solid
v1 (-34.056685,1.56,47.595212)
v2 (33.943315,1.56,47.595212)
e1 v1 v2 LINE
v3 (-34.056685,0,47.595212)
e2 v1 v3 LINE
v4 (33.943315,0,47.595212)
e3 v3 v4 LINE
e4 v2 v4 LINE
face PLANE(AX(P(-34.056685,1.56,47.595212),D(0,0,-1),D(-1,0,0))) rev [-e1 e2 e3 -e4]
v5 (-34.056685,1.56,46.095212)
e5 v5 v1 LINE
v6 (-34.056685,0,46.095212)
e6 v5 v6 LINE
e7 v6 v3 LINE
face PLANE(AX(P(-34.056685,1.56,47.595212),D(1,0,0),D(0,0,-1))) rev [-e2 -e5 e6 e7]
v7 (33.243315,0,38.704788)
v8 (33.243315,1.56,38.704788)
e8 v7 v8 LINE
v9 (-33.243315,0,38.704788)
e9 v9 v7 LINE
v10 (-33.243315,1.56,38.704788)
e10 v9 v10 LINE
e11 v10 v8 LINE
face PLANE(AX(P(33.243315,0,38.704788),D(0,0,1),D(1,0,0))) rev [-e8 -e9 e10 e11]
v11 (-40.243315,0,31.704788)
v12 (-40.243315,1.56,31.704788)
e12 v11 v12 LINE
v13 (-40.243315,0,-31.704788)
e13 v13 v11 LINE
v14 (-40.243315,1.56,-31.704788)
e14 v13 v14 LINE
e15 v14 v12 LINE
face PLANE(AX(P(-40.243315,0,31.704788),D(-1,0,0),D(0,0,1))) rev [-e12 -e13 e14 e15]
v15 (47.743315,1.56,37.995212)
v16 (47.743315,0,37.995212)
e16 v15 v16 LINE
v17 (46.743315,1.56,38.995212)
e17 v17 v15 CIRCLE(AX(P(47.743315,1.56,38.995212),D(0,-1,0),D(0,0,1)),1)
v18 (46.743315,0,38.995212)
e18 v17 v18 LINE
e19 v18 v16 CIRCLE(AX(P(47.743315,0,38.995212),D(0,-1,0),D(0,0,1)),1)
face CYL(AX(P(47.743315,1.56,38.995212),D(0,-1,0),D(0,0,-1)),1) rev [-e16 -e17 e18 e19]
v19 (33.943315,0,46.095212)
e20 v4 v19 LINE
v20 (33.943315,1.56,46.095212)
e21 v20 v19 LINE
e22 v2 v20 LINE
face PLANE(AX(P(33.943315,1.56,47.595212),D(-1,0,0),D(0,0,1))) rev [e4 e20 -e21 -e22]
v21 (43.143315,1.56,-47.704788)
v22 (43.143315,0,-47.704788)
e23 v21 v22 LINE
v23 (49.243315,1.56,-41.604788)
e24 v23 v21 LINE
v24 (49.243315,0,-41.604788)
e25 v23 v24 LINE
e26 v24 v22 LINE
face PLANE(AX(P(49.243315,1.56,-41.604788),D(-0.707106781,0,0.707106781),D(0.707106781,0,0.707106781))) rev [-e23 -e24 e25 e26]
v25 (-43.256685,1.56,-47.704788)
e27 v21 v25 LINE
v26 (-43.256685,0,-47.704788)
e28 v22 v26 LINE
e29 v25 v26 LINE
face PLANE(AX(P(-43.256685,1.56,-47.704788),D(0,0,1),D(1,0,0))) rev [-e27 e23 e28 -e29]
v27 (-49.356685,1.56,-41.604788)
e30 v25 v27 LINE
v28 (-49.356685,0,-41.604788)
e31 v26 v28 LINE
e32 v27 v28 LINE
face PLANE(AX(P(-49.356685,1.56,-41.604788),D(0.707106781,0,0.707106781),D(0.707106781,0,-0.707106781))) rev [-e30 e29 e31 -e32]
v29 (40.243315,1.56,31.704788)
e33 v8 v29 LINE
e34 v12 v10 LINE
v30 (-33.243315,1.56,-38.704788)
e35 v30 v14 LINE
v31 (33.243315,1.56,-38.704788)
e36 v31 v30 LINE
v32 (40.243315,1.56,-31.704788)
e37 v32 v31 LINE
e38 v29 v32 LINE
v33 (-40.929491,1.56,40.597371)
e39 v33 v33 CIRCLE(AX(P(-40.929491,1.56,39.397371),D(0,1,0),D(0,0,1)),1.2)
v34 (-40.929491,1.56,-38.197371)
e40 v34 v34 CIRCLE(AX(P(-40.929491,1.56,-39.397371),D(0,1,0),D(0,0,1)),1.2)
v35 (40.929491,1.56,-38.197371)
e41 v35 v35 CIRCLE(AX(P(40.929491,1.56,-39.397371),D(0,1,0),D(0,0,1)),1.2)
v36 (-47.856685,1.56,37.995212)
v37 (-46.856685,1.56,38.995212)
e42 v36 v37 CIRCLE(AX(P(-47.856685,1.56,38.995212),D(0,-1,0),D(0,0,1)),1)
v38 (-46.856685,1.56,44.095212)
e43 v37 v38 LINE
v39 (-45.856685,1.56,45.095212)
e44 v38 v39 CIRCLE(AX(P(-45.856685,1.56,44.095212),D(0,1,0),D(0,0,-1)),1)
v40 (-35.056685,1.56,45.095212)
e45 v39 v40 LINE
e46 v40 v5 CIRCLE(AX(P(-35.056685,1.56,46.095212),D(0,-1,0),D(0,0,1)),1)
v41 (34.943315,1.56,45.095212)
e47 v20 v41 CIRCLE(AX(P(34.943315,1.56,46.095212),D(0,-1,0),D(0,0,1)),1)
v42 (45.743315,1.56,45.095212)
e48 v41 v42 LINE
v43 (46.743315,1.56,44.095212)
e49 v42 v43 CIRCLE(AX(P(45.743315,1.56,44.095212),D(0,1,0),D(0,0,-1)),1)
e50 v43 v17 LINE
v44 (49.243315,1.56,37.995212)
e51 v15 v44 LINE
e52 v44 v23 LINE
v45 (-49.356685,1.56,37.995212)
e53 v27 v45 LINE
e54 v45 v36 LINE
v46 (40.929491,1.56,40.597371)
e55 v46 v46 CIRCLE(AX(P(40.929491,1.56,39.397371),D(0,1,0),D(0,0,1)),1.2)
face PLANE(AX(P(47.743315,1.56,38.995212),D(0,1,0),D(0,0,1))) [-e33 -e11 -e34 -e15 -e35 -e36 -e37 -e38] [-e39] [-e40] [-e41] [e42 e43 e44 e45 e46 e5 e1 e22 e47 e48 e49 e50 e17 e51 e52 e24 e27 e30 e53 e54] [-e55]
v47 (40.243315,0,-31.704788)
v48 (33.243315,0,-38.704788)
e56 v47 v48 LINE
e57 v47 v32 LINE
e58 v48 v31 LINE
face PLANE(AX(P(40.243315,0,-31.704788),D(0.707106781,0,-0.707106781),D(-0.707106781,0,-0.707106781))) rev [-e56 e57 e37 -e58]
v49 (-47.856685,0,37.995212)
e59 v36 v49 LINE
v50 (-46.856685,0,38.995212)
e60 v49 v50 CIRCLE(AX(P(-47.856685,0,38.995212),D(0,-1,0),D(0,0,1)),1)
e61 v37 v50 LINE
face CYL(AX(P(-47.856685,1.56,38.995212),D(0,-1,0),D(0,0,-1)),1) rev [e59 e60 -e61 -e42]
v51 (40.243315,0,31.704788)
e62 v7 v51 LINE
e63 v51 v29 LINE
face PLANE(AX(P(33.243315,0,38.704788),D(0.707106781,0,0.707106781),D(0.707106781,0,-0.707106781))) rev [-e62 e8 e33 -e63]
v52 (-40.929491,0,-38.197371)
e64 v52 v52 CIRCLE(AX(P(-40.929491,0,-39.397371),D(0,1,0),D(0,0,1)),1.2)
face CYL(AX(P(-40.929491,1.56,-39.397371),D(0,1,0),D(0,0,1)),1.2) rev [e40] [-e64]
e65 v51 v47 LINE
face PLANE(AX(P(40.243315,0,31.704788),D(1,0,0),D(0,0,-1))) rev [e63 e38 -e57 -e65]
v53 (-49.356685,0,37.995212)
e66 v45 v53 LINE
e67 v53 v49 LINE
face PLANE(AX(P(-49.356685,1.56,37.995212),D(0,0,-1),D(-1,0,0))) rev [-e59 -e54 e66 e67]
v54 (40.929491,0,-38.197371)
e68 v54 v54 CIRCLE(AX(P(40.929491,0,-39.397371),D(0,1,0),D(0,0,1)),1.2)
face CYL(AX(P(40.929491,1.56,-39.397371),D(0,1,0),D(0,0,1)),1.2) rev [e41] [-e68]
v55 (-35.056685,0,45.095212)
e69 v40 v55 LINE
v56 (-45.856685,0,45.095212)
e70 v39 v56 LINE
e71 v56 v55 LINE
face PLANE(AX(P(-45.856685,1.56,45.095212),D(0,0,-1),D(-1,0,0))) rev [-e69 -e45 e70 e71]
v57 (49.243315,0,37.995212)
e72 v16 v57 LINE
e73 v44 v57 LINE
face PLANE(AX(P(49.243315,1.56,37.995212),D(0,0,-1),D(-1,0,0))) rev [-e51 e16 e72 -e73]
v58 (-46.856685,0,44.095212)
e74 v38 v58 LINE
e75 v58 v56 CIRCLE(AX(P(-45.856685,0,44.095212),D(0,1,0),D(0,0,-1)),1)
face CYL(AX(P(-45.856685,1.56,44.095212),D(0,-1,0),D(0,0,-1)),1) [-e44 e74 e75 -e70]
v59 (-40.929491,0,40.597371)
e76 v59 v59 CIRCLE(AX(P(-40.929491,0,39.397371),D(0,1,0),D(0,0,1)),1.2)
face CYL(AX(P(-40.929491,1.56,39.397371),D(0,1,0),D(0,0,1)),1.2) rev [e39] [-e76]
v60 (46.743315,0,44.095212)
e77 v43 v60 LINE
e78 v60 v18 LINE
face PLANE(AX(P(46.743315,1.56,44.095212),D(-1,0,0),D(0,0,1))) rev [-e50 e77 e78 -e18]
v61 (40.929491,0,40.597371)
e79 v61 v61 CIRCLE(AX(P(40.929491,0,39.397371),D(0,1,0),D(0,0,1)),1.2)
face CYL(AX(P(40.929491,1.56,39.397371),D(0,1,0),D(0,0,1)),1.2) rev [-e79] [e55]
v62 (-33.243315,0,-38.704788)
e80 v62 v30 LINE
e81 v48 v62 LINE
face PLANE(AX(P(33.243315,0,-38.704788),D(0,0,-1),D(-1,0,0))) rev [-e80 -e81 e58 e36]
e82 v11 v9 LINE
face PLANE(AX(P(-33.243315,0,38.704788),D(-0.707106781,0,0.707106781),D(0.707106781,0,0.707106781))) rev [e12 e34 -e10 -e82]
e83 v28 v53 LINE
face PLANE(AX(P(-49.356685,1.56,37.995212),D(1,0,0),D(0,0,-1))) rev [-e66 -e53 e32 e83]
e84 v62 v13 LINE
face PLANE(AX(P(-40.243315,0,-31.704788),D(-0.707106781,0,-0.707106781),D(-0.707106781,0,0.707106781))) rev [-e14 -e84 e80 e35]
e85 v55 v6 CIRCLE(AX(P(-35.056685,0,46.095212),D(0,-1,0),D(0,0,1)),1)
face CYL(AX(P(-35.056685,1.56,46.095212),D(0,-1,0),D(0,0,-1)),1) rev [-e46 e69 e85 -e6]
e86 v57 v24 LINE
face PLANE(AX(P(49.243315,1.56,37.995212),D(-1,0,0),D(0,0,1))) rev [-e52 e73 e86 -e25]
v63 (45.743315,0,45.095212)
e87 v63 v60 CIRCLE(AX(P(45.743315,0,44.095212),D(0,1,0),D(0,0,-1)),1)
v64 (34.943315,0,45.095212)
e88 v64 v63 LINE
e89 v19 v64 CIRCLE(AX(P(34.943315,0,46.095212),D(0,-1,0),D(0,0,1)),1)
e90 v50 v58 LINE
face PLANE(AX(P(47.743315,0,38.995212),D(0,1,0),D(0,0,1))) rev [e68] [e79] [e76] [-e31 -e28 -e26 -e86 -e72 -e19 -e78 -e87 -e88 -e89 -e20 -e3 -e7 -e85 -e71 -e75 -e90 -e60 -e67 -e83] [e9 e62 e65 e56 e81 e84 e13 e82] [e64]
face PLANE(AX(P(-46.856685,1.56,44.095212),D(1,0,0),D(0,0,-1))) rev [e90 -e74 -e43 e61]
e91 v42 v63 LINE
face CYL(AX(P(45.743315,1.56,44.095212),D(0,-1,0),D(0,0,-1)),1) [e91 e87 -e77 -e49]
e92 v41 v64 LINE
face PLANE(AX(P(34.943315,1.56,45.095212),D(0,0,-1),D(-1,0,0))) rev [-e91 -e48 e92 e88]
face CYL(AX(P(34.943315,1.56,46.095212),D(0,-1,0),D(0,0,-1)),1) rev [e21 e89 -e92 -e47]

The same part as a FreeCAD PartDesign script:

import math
import FreeCAD as App
import Part
import Sketcher

doc = App.newDocument("Part")
body = doc.addObject("PartDesign::Body", "Body")

# Sketch on XZ plane
sketch1 = body.newObject("Sketcher::SketchObject", "Sketch")
sketch1.AttachmentSupport = (doc.getObject("XZ_Plane"), [""])
sketch1.MapMode = "FlatFace"
sketch1.addGeometry([
    Part.LineSegment(App.Vector(-43.3, -47.7, 0), App.Vector(-49.4, -41.6, 0)),  # 0
    Part.LineSegment(App.Vector(-49.4, -41.6, 0), App.Vector(-49.4, 38, 0)),  # 1
    Part.LineSegment(App.Vector(-49.4, 38, 0), App.Vector(-47.9, 38, 0)),  # 2
    Part.ArcOfCircle(Part.Circle(App.Vector(-47.9, 39, 0), App.Vector(0, 0, 1), 1), math.radians(-90), math.radians(0)),  # 3
    Part.LineSegment(App.Vector(-46.9, 39, 0), App.Vector(-46.9, 44.1, 0)),  # 4
    Part.ArcOfCircle(Part.Circle(App.Vector(-45.9, 44.1, 0), App.Vector(0, 0, 1), 1), math.radians(90), math.radians(180)),  # 5
    Part.LineSegment(App.Vector(-45.9, 45.1, 0), App.Vector(-35.1, 45.1, 0)),  # 6
    Part.ArcOfCircle(Part.Circle(App.Vector(-35.1, 46.1, 0), App.Vector(0, 0, 1), 1), math.radians(-90), math.radians(0)),  # 7
    Part.LineSegment(App.Vector(-34.1, 46.1, 0), App.Vector(-34.1, 47.6, 0)),  # 8
    Part.LineSegment(App.Vector(-34.1, 47.6, 0), App.Vector(33.9, 47.6, 0)),  # 9
    Part.LineSegment(App.Vector(33.9, 47.6, 0), App.Vector(33.9, 46.1, 0)),  # 10
    Part.ArcOfCircle(Part.Circle(App.Vector(34.9, 46.1, 0), App.Vector(0, 0, 1), 1), math.radians(180), math.radians(270)),  # 11
    Part.LineSegment(App.Vector(34.9, 45.1, 0), App.Vector(45.7, 45.1, 0)),  # 12
    Part.ArcOfCircle(Part.Circle(App.Vector(45.7, 44.1, 0), App.Vector(0, 0, 1), 1), math.radians(0), math.radians(90)),  # 13
    Part.LineSegment(App.Vector(46.7, 44.1, 0), App.Vector(46.7, 39, 0)),  # 14
    Part.ArcOfCircle(Part.Circle(App.Vector(47.7, 39, 0), App.Vector(0, 0, 1), 1), math.radians(180), math.radians(270)),  # 15
    Part.LineSegment(App.Vector(47.7, 38, 0), App.Vector(49.2, 38, 0)),  # 16
    Part.LineSegment(App.Vector(49.2, 38, 0), App.Vector(49.2, -41.6, 0)),  # 17
    Part.LineSegment(App.Vector(49.2, -41.6, 0), App.Vector(43.1, -47.7, 0)),  # 18
    Part.LineSegment(App.Vector(43.1, -47.7, 0), App.Vector(-43.3, -47.7, 0)),  # 19
], False)
sketch1.addConstraint([
    Sketcher.Constraint("Coincident", 0, 2, 1, 1),
    Sketcher.Constraint("Coincident", 1, 2, 2, 1),
    Sketcher.Constraint("Tangent", 2, 2, 3, 1),
    Sketcher.Constraint("Tangent", 3, 2, 4, 1),
    Sketcher.Constraint("Tangent", 4, 2, 5, 2),
    Sketcher.Constraint("Tangent", 5, 1, 6, 1),
    Sketcher.Constraint("Tangent", 6, 2, 7, 1),
    Sketcher.Constraint("Tangent", 7, 2, 8, 1),
    Sketcher.Constraint("Coincident", 8, 2, 9, 1),
    Sketcher.Constraint("Coincident", 9, 2, 10, 1),
    Sketcher.Constraint("Tangent", 10, 2, 11, 1),
    Sketcher.Constraint("Tangent", 11, 2, 12, 1),
    Sketcher.Constraint("Tangent", 12, 2, 13, 2),
    Sketcher.Constraint("Tangent", 13, 1, 14, 1),
    Sketcher.Constraint("Tangent", 14, 2, 15, 1),
    Sketcher.Constraint("Tangent", 15, 2, 16, 1),
    Sketcher.Constraint("Coincident", 16, 2, 17, 1),
    Sketcher.Constraint("Coincident", 17, 2, 18, 1),
    Sketcher.Constraint("Coincident", 18, 2, 19, 1),
    Sketcher.Constraint("Coincident", 19, 2, 0, 1),
    Sketcher.Constraint("Vertical", 1),
    Sketcher.Constraint("Horizontal", 2),
    Sketcher.Constraint("Vertical", 4),
    Sketcher.Constraint("Horizontal", 6),
    Sketcher.Constraint("Vertical", 8),
    Sketcher.Constraint("Horizontal", 9),
    Sketcher.Constraint("Vertical", 10),
    Sketcher.Constraint("Horizontal", 12),
    Sketcher.Constraint("Vertical", 14),
    Sketcher.Constraint("Horizontal", 16),
    Sketcher.Constraint("Vertical", 17),
    Sketcher.Constraint("Horizontal", 19),
    Sketcher.Constraint("Equal", 3, 5),
    Sketcher.Constraint("Equal", 5, 7),
    Sketcher.Constraint("Equal", 7, 11),
    Sketcher.Constraint("Equal", 11, 13),
    Sketcher.Constraint("Equal", 13, 15),
    Sketcher.Constraint("Perpendicular", 0, 18),
    Sketcher.Constraint("Horizontal", 7, 3, 11, 3),
    Sketcher.Constraint("Horizontal", 3, 3, 15, 3),
    Sketcher.Constraint("Horizontal", 0, 2, 17, 2),
    Sketcher.Constraint("Equal", 6, 12),
    Sketcher.Constraint("Equal", 2, 16),
    Sketcher.Constraint("Equal", 16, 8),
    Sketcher.Constraint("Equal", 0, 18),
    Sketcher.Constraint("Radius", 3, 1.0),
    Sketcher.Constraint("DistanceX", 9, 1, 9, 2, 68.0),
    Sketcher.Constraint("DistanceX", 2, 1, 2, 2, 1.5),
    Sketcher.Constraint("DistanceX", 6, 1, 6, 2, 10.8),
    Sketcher.Constraint("DistanceX", 19, 2, 19, 1, 86.4),
    Sketcher.Constraint("DistanceY", 1, 1, 1, 2, 79.6),
    Sketcher.Constraint("DistanceY", 4, 1, 4, 2, 5.1),
    Sketcher.Constraint("DistanceY", -1, 1, 3, 3, 38.995212),
    Sketcher.Constraint("DistanceX", 3, 3, -1, 1, 47.856685),
])
pad1 = body.newObject("PartDesign::Pad", "Pad")
pad1.Profile = sketch1
pad1.Length = 1.56
pad1.Reversed = True

# Sketch on XZ plane
sketch2 = body.newObject("Sketcher::SketchObject", "Sketch001")
sketch2.AttachmentSupport = (doc.getObject("XZ_Plane"), [""])
sketch2.MapMode = "FlatFace"
sketch2.AttachmentOffset = App.Placement(App.Vector(0, 0, -1.56), App.Rotation())
sketch2.addGeometry([
    Part.LineSegment(App.Vector(-33, -39, 0), App.Vector(-40, -32, 0)),  # 0
    Part.LineSegment(App.Vector(-40, -32, 0), App.Vector(-40, 32, 0)),  # 1
    Part.LineSegment(App.Vector(-40, 32, 0), App.Vector(-33, 39, 0)),  # 2
    Part.LineSegment(App.Vector(-33, 39, 0), App.Vector(33, 39, 0)),  # 3
    Part.LineSegment(App.Vector(33, 39, 0), App.Vector(40, 32, 0)),  # 4
    Part.LineSegment(App.Vector(40, 32, 0), App.Vector(40, -32, 0)),  # 5
    Part.LineSegment(App.Vector(40, -32, 0), App.Vector(33, -39, 0)),  # 6
    Part.LineSegment(App.Vector(33, -39, 0), App.Vector(-33, -39, 0)),  # 7
], False)
sketch2.addConstraint([
    Sketcher.Constraint("Coincident", 0, 2, 1, 1),
    Sketcher.Constraint("Coincident", 1, 2, 2, 1),
    Sketcher.Constraint("Coincident", 2, 2, 3, 1),
    Sketcher.Constraint("Coincident", 3, 2, 4, 1),
    Sketcher.Constraint("Coincident", 4, 2, 5, 1),
    Sketcher.Constraint("Coincident", 5, 2, 6, 1),
    Sketcher.Constraint("Coincident", 6, 2, 7, 1),
    Sketcher.Constraint("Coincident", 7, 2, 0, 1),
    Sketcher.Constraint("Vertical", 1),
    Sketcher.Constraint("Horizontal", 3),
    Sketcher.Constraint("Vertical", 5),
    Sketcher.Constraint("Horizontal", 7),
    Sketcher.Constraint("Symmetric", 0, 2, 4, 2, -1, 1),
    Sketcher.Constraint("Symmetric", 2, 2, 6, 2, -1, 1),
    Sketcher.Constraint("Perpendicular", 0, 2),
    Sketcher.Constraint("Perpendicular", 2, 4),
    Sketcher.Constraint("Perpendicular", 4, 6),
    Sketcher.Constraint("Horizontal", 1, 2, 4, 2),
    Sketcher.Constraint("Vertical", 3, 2, 6, 2),
    Sketcher.Constraint("DistanceX", 1, 2, 2, 2, 7.0),
    Sketcher.Constraint("DistanceX", 3, 1, 3, 2, 66.48663),
    Sketcher.Constraint("DistanceY", 1, 1, 1, 2, 63.409576),
])
pocket1 = body.newObject("PartDesign::Pocket", "Pocket")
pocket1.Profile = sketch2
pocket1.Length = 1.56
pocket1.Reversed = True

# Sketch on XZ plane
sketch3 = body.newObject("Sketcher::SketchObject", "Sketch002")
sketch3.AttachmentSupport = (doc.getObject("XZ_Plane"), [""])
sketch3.MapMode = "FlatFace"
sketch3.AttachmentOffset = App.Placement(App.Vector(0, 0, -1.56), App.Rotation())
sketch3.addGeometry([
    Part.Circle(App.Vector(40.9, -39.4, 0), App.Vector(0, 0, 1), 1.2),  # 0
    Part.Circle(App.Vector(40.9, 39.4, 0), App.Vector(0, 0, 1), 1.2),  # 1
    Part.Circle(App.Vector(-40.9, 39.4, 0), App.Vector(0, 0, 1), 1.2),  # 2
    Part.Circle(App.Vector(-40.9, -39.4, 0), App.Vector(0, 0, 1), 1.2),  # 3
    Part.Circle(App.Vector(0, 0, 0), App.Vector(0, 0, 1), 1.2),  # 4
], False)
sketch3.addConstraint([
    Sketcher.Constraint("Coincident", 4, 3, -1, 1),
    Sketcher.Constraint("Equal", 0, 1),
    Sketcher.Constraint("Equal", 1, 2),
    Sketcher.Constraint("Equal", 2, 3),
    Sketcher.Constraint("Equal", 3, 4),
    Sketcher.Constraint("Symmetric", 0, 3, 2, 3, -1, 1),
    Sketcher.Constraint("Symmetric", 1, 3, 3, 3, -1, 1),
    Sketcher.Constraint("Symmetric", 1, 3, 2, 3, -2),
    Sketcher.Constraint("Diameter", 0, 2.4),
    Sketcher.Constraint("DistanceX", -1, 1, 0, 3, 40.929491),
    Sketcher.Constraint("DistanceY", 0, 3, -1, 1, 39.397371),
])
doc.recompute()
hole = body.newObject("PartDesign::Hole", "Hole")
hole.Profile = sketch3
hole.ThreadType = "None"
hole.Diameter = 2.4
hole.DepthType = "Dimension"
hole.Depth = 38.1
hole.DrillPoint = "Angled"
hole.DrillPointAngle = 118
hole.Reversed = True

doc.recompute()
